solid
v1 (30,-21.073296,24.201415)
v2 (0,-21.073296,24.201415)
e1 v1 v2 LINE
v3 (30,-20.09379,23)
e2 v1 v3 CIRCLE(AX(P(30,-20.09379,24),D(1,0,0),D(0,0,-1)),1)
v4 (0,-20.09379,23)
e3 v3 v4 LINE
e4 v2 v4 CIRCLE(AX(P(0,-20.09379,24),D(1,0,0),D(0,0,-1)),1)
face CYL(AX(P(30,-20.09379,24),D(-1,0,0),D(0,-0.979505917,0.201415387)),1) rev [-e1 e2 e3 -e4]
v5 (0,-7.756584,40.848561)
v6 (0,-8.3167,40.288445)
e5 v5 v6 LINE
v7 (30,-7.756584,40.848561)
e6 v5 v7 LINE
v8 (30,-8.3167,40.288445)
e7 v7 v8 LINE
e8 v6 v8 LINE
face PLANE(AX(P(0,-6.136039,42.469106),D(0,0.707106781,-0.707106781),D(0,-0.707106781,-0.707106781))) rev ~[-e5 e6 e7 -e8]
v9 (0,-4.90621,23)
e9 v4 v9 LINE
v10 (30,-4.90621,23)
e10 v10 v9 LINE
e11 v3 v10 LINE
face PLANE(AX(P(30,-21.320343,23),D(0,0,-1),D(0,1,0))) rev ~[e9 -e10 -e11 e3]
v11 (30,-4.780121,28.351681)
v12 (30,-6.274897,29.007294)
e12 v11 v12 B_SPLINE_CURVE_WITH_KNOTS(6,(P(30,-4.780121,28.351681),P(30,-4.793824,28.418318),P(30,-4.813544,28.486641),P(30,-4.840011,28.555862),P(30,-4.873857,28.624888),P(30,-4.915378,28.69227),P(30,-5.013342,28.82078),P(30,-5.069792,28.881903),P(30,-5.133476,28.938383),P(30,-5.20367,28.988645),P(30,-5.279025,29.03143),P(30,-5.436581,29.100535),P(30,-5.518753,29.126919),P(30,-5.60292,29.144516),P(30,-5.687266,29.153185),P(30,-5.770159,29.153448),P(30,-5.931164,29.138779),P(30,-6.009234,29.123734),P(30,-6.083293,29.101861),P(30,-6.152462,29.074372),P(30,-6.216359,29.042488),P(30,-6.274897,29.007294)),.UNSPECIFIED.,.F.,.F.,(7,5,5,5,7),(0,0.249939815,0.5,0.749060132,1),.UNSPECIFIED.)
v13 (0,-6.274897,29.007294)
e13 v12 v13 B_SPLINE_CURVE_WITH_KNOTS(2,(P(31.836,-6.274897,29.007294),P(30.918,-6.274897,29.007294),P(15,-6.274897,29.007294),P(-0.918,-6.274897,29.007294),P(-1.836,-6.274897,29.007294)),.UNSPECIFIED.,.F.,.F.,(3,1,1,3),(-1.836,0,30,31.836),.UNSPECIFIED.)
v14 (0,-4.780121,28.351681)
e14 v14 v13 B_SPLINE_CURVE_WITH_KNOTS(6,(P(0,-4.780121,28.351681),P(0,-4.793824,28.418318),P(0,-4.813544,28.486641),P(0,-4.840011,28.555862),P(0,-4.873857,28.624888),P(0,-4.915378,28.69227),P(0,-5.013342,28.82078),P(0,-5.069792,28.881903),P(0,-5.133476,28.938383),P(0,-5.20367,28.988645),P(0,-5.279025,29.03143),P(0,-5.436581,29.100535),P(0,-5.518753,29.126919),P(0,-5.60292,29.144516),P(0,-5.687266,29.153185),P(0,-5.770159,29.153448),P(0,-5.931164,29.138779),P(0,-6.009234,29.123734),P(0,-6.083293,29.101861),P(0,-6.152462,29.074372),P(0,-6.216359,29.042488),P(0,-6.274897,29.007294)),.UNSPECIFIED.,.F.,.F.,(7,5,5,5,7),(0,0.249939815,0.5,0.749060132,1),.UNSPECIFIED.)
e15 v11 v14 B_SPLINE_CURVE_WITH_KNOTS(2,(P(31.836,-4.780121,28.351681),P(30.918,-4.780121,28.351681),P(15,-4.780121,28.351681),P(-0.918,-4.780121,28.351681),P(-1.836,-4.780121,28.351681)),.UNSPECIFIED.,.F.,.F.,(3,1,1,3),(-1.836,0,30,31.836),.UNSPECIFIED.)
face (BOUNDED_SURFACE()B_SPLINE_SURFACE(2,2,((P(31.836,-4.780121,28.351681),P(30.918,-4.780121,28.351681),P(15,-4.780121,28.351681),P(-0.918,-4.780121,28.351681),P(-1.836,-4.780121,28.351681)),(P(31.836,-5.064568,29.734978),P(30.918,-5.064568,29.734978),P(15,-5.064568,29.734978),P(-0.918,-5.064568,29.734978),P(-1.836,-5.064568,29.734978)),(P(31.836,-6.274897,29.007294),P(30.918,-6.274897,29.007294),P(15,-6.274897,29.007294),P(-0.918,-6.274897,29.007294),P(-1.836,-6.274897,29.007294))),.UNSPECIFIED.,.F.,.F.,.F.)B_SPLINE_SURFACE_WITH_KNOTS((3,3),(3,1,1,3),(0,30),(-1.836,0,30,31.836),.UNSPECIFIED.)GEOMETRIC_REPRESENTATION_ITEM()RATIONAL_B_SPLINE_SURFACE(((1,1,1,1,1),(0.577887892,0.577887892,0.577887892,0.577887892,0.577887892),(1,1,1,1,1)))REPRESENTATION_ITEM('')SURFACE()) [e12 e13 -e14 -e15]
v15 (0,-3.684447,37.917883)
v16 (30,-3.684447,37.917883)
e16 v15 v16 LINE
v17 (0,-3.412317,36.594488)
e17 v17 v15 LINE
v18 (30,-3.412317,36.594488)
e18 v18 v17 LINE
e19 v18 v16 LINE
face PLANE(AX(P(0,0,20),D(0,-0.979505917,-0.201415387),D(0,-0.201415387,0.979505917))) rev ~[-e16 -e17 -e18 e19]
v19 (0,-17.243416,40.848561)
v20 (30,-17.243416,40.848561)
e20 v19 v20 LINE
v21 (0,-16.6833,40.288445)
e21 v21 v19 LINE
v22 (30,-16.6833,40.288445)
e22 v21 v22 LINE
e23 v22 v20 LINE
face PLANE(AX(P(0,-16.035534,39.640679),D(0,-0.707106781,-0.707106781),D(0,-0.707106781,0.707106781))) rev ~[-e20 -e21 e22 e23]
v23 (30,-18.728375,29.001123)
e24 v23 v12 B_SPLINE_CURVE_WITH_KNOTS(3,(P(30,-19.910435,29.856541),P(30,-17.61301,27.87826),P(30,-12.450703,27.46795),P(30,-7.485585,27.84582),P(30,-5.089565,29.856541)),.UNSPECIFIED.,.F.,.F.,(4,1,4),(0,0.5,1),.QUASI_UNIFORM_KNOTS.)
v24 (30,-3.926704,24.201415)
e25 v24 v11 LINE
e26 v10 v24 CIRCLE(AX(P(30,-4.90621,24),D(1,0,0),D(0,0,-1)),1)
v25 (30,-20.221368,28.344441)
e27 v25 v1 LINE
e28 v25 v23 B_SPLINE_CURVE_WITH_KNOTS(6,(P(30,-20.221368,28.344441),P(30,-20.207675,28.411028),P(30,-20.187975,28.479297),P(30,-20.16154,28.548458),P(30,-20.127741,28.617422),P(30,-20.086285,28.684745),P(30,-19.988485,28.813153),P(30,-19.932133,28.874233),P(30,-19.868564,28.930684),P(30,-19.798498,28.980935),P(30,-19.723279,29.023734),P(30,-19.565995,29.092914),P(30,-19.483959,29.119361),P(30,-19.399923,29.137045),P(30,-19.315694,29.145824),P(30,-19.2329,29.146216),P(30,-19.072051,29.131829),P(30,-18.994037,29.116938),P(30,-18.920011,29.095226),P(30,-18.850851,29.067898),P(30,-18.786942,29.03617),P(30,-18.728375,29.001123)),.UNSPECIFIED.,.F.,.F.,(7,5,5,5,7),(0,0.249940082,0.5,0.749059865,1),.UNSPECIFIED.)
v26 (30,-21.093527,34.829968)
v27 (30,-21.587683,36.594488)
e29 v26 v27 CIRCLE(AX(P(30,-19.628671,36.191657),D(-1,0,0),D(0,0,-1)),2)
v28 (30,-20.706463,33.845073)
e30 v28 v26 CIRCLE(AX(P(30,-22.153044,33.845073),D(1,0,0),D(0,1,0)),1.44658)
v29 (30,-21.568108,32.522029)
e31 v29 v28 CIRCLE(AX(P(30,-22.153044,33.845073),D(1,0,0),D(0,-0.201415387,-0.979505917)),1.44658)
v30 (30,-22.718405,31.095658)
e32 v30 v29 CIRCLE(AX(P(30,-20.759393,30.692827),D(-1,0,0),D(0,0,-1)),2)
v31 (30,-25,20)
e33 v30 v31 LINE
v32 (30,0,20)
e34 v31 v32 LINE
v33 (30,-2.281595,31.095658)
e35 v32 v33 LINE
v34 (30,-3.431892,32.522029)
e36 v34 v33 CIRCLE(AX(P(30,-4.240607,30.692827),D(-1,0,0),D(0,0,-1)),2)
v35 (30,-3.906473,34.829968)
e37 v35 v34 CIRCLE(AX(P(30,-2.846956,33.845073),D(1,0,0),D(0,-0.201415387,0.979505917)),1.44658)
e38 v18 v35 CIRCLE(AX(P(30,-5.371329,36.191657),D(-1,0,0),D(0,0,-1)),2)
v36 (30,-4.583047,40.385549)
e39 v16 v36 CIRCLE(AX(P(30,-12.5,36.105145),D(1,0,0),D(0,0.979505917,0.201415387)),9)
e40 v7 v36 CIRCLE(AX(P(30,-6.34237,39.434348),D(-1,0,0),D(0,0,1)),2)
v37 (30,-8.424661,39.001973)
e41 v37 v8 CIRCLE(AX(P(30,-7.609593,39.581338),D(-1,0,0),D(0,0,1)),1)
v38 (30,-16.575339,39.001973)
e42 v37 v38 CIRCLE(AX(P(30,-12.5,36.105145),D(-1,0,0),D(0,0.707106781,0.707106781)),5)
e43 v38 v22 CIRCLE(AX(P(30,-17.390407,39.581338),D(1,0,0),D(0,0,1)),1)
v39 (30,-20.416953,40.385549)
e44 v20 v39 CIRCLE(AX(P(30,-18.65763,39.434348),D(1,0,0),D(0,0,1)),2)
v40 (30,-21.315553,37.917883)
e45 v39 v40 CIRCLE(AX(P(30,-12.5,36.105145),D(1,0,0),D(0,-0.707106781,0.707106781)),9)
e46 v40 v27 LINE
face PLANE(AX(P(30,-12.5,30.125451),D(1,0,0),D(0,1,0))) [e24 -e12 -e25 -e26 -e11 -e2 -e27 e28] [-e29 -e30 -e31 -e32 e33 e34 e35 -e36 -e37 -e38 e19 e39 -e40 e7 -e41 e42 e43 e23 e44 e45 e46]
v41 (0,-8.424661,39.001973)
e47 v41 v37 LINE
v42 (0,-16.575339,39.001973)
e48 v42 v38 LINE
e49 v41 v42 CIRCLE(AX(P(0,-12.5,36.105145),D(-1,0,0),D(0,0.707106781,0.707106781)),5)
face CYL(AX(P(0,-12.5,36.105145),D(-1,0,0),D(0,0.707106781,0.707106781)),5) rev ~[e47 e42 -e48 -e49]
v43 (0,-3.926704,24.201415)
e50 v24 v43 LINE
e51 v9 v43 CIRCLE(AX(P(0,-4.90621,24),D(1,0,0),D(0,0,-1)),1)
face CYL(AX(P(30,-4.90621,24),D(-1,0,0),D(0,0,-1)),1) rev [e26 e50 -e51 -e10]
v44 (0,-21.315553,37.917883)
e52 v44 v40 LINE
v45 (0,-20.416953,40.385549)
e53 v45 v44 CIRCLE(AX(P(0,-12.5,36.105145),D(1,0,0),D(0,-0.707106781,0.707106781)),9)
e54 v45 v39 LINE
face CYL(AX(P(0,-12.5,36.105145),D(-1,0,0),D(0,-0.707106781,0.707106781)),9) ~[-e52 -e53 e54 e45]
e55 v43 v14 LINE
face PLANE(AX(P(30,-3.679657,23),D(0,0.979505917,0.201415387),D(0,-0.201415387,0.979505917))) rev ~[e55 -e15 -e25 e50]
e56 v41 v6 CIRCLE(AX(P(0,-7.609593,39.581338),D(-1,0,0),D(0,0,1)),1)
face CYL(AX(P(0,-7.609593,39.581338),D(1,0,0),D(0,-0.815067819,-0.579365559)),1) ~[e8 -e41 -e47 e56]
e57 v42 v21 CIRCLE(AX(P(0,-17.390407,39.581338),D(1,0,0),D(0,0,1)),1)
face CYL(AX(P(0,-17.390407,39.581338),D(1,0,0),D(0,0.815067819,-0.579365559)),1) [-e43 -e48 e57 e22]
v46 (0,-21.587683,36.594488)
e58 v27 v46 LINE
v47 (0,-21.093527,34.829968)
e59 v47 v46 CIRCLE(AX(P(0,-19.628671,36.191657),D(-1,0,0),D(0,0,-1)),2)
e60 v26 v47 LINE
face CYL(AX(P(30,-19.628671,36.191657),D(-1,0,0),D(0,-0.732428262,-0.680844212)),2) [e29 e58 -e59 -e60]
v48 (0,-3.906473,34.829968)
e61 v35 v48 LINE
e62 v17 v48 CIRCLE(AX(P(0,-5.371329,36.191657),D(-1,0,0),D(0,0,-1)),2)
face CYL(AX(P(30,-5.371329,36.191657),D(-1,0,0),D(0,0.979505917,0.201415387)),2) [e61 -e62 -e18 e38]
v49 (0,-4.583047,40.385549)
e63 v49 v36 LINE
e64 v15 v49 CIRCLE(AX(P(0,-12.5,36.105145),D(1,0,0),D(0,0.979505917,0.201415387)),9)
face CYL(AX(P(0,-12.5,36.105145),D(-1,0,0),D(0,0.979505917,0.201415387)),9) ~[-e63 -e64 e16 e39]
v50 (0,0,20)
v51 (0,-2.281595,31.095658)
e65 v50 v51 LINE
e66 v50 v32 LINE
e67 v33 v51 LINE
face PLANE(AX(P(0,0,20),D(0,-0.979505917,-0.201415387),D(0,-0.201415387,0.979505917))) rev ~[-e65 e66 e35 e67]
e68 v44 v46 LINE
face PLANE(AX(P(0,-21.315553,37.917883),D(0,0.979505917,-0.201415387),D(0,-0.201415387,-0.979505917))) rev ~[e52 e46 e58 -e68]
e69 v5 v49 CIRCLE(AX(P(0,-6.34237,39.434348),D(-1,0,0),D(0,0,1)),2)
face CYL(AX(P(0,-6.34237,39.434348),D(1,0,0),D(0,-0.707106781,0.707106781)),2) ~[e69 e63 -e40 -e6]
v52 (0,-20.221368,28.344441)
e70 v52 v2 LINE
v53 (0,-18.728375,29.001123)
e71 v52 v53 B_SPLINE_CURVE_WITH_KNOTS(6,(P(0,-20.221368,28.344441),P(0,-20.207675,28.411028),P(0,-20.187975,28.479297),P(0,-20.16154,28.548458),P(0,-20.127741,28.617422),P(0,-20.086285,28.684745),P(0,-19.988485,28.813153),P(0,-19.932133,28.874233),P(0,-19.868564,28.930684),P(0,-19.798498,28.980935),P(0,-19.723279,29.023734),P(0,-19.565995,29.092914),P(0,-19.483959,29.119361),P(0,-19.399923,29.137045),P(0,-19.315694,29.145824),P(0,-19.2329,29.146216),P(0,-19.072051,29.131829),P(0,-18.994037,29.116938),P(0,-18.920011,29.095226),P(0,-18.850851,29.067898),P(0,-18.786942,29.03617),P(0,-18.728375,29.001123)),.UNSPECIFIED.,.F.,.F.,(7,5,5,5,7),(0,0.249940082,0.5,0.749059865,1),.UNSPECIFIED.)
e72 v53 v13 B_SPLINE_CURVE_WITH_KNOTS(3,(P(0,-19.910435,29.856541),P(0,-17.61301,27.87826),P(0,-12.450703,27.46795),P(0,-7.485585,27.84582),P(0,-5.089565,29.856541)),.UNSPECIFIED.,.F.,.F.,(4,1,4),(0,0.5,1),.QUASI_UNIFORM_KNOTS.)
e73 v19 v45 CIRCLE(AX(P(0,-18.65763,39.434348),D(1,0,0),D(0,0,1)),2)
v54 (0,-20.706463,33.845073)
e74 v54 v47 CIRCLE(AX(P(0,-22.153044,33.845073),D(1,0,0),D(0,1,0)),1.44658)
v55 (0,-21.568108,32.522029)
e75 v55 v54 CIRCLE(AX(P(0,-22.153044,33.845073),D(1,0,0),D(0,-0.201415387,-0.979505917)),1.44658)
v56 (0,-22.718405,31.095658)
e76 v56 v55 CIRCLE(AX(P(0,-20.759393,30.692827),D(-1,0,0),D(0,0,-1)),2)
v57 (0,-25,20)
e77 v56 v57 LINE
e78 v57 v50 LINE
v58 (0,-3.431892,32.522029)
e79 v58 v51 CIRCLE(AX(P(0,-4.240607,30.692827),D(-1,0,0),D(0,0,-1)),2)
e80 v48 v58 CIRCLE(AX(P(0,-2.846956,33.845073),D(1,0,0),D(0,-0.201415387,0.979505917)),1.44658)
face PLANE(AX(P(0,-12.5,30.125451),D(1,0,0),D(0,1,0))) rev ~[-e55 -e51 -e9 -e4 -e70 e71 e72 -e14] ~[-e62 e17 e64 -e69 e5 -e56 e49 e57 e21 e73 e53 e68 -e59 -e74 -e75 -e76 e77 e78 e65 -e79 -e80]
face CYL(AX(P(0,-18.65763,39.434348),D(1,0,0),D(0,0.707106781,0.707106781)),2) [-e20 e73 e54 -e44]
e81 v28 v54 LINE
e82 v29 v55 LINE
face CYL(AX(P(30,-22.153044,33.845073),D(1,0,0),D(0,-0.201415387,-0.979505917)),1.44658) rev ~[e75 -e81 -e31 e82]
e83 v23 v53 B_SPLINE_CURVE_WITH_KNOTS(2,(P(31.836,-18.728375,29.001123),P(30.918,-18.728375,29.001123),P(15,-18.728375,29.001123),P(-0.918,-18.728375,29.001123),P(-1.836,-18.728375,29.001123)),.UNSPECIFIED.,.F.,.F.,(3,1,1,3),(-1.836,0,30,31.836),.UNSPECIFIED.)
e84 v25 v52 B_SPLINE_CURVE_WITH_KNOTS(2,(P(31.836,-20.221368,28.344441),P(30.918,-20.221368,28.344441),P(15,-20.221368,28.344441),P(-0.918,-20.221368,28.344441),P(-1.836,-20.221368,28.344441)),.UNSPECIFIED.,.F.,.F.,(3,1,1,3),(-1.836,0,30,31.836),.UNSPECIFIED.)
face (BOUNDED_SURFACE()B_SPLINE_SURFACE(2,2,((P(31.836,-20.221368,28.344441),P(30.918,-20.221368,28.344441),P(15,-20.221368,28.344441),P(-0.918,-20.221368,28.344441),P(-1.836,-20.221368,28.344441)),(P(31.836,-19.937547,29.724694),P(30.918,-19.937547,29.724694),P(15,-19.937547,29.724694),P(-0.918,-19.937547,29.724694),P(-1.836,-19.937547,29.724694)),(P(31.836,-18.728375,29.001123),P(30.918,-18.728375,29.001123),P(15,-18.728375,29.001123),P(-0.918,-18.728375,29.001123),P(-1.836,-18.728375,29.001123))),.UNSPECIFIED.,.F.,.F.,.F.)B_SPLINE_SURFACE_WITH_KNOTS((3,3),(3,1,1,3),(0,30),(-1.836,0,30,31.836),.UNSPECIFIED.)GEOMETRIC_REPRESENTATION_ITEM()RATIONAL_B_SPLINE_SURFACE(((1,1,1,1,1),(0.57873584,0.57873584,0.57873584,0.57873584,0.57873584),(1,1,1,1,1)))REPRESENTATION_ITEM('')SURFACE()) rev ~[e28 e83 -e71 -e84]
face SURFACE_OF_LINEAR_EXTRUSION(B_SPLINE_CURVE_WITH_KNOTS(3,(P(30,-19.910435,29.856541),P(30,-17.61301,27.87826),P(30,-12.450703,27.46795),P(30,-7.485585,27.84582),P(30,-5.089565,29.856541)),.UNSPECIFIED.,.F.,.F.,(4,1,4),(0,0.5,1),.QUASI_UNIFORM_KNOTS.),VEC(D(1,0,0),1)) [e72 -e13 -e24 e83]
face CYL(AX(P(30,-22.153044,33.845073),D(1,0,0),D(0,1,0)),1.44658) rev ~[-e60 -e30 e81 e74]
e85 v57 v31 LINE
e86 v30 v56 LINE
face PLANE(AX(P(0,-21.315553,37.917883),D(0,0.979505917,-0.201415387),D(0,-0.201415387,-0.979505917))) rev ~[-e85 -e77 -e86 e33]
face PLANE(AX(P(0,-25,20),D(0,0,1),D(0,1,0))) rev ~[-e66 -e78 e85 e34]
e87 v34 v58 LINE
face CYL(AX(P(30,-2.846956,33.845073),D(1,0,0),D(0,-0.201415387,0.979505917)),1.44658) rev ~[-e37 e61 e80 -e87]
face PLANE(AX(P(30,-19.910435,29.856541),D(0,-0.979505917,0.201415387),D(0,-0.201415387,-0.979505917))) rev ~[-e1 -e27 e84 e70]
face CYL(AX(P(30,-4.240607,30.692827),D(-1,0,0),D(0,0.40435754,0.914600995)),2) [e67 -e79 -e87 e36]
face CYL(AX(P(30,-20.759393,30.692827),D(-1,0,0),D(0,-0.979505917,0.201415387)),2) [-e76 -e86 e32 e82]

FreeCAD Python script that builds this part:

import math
import FreeCAD as App
import Part
import Sketcher
from FreeCAD import Vector


def edges_at(feature, points):
    """Names of the edges that pass closest to the given points."""
    edges = feature.Shape.Edges
    near = lambda p: min(range(len(edges)), key=lambda i: edges[i].distToShape(Part.Vertex(*p))[0])
    return sorted({f"Edge{near(p) + 1}" for p in points})

doc = App.newDocument("Part")
body = doc.addObject("PartDesign::Body", "Body")

# Sketch on YZ plane
sketch1 = doc.addObject("Sketcher::SketchObject", "Sketch")
body.addObject(sketch1)
sketch1.AttachmentSupport = (doc.YZ_Plane, [""])
sketch1.MapMode = "FlatFace"
sketch1.addGeometry([
    Part.ArcOfCircle(Part.Circle(Vector(-12.5, 36.1, 0), Vector(0, 0, 1), 5), math.radians(135), math.radians(405)),  # 0
    Part.LineSegment(Vector(-16, 39.6, 0), Vector(-18.9, 42.5, 0)),  # 1
    Part.ArcOfCircle(Part.Circle(Vector(-12.5, 36.1, 0), Vector(0, 0, 1), 9), math.radians(135), math.radians(168)),  # 2
    Part.LineSegment(Vector(-21.3, 37.9, 0), Vector(-25, 20, 0)),  # 3
    Part.LineSegment(Vector(-25, 20, 0), Vector(0, 20, 0)),  # 4
    Part.LineSegment(Vector(0, 20, 0), Vector(-3.7, 37.9, 0)),  # 5
    Part.ArcOfCircle(Part.Circle(Vector(-12.5, 36.1, 0), Vector(0, 0, 1), 9), math.radians(12), math.radians(45)),  # 6
    Part.LineSegment(Vector(-6.1, 42.5, 0), Vector(-9, 39.6, 0)),  # 7
], False)
sketch1.addConstraint([
    Sketcher.Constraint("Coincident", 0, 1, 1, 1),
    Sketcher.Constraint("Coincident", 1, 2, 2, 1),
    Sketcher.Constraint("Tangent", 2, 2, 3, 1),
    Sketcher.Constraint("Coincident", 3, 2, 4, 1),
    Sketcher.Constraint("Coincident", 4, 2, 5, 1),
    Sketcher.Constraint("Tangent", 5, 2, 6, 1),
    Sketcher.Constraint("Coincident", 6, 2, 7, 1),
    Sketcher.Constraint("Coincident", 7, 2, 0, 2),
    Sketcher.Constraint("Horizontal", 4),
    Sketcher.Constraint("Coincident", 2, 3, 0, 3),
    Sketcher.Constraint("Coincident", 6, 3, 0, 3),
    Sketcher.Constraint("Equal", 2, 6),
    Sketcher.Constraint("PointOnObject", 4, 2, -2),
    Sketcher.Constraint("Perpendicular", 1, 7),
    Sketcher.Constraint("Horizontal", 2, 2, 5, 2),
    Sketcher.Constraint("Horizontal", 1, 2, 6, 2),
    Sketcher.Constraint("Horizontal", 0, 1, 7, 2),
    Sketcher.Constraint("Radius", 0, 5.0),
    Sketcher.Constraint("Radius", 2, 9.0),
    Sketcher.Constraint("DistanceX", 4, 1, 4, 2, 25.0),
    Sketcher.Constraint("DistanceY", -1, 1, 3, 2, 20.0),
    Sketcher.Constraint("DistanceY", -1, 1, 0, 1, 39.640679),
    Sketcher.Constraint("DistanceX", 1, 2, -1, 1, 18.863961),
])
pad1 = doc.addObject("PartDesign::Pad", "Pad")
body.addObject(pad1)
pad1.Profile = sketch1
pad1.Length = 30
doc.recompute()

fillet = doc.addObject("PartDesign::Fillet", "Fillet")
body.addObject(fillet)
fillet.Base = (pad1, edges_at(pad1, [(15, -8.964, 39.641), (15, -16.036, 39.641)]))
fillet.Radius = 1
doc.recompute()

fillet2 = doc.addObject("PartDesign::Fillet", "Fillet001")
body.addObject(fillet2)
fillet2.Base = (fillet, edges_at(fillet, [(15, -6.136, 42.469), (15, -18.864, 42.469)]))
fillet2.Radius = 2

# Sketch on YZ plane
sketch2 = doc.addObject("Sketcher::SketchObject", "Sketch001")
body.addObject(sketch2)
sketch2.AttachmentSupport = (doc.YZ_Plane, [""])
sketch2.MapMode = "FlatFace"
sketch2.AttachmentOffset = App.Placement(Vector(0, 0, 30), App.Rotation())
sketch2.addGeometry([
    Part.LineSegment(Vector(-19.910435, 29.856541, 0), Vector(-21.320343, 23, 0)),
    Part.LineSegment(Vector(-21.320343, 23, 0), Vector(-3.679657, 23, 0)),
    Part.LineSegment(Vector(-3.679657, 23, 0), Vector(-5.089565, 29.856541, 0)),
    Part.BSplineCurve([Vector(-19.910435, 29.856541, 0), Vector(-17.61301, 27.87826, 0), Vector(-12.450703, 27.46795, 0), Vector(-7.485585, 27.84582, 0), Vector(-5.089565, 29.856541, 0)], [4, 1, 4], [0, 0.5, 1], False, 3, [1, 1, 1, 1, 1], False),
], False)
sketch2.addConstraint([
    Sketcher.Constraint("Block", 3),
    Sketcher.Constraint("Coincident", 0, 2, 1, 1),
    Sketcher.Constraint("Coincident", 1, 2, 2, 1),
    Sketcher.Constraint("Coincident", 2, 2, 3, 2),
    Sketcher.Constraint("Coincident", 3, 1, 0, 1),
    Sketcher.Constraint("Horizontal", 1),
    Sketcher.Constraint("Equal", 0, 2),
    Sketcher.Constraint("Distance", 0, 7.0),
    Sketcher.Constraint("DistanceY", -1, 1, 0, 2, 23.0),
])
pocket1 = doc.addObject("PartDesign::Pocket", "Pocket")
body.addObject(pocket1)
pocket1.Profile = sketch2
pocket1.Type = "ThroughAll"
doc.recompute()

fillet3 = doc.addObject("PartDesign::Fillet", "Fillet002")
body.addObject(fillet3)
fillet3.Base = (pocket1, edges_at(pocket1, [
    (15, -21.32, 23),
    (15, -19.91, 29.857),
    (15, -3.68, 23),
    (15, -5.09, 29.857),
]))
fillet3.Radius = 1

# Sketch on YZ plane
sketch3 = doc.addObject("Sketcher::SketchObject", "Sketch002")
body.addObject(sketch3)
sketch3.AttachmentSupport = (doc.YZ_Plane, [""])
sketch3.MapMode = "FlatFace"
sketch3.AttachmentOffset = App.Placement(Vector(0, 0, 30), App.Rotation())
sketch3.addGeometry([
    Part.ArcOfCircle(Part.Circle(Vector(-2.8, 33.8, 0), Vector(0, 0, 1), 1.4), math.radians(102), math.radians(282)),  # 0
    Part.LineSegment(Vector(-2.6, 32.4, 0), Vector(-3.1, 35.3, 0)),  # 1
    Part.ArcOfCircle(Part.Circle(Vector(-22.2, 33.8, 0), Vector(0, 0, 1), 1.4), math.radians(-102), math.radians(0)),  # 2
    Part.ArcOfCircle(Part.Circle(Vector(-22.2, 33.8, 0), Vector(0, 0, 1), 1.4), math.radians(0), math.radians(78)),  # 3
    Part.LineSegment(Vector(-21.9, 35.3, 0), Vector(-22.4, 32.4, 0)),  # 4
], False)
sketch3.addConstraint([
    Sketcher.Constraint("Coincident", 0, 1, 1, 2),
    Sketcher.Constraint("Coincident", 1, 1, 0, 2),
    Sketcher.Constraint("Tangent", 2, 2, 3, 1),
    Sketcher.Constraint("Coincident", 3, 2, 4, 1),
    Sketcher.Constraint("Coincident", 4, 2, 2, 1),
    Sketcher.Constraint("Equal", 0, 2),
    Sketcher.Constraint("Equal", 2, 3),
    Sketcher.Constraint("Horizontal", 0, 3, 2, 3),
    Sketcher.Constraint("Horizontal", 3, 3, 2, 2),
    Sketcher.Constraint("Horizontal", 0, 1, 3, 2),
    Sketcher.Constraint("Horizontal", 1, 1, 4, 2),
    Sketcher.Constraint("Radius", 0, 1.44658),
    Sketcher.Constraint("DistanceX", 0, 1, -1, 1, 3.13832),
    Sketcher.Constraint("DistanceY", -1, 1, 1, 1, 32.428139),
    Sketcher.Constraint("DistanceX", 3, 2, -1, 1, 21.86168),
    Sketcher.Constraint("DistanceY", 1, 1, 0, 1, 2.833868),
    Sketcher.Constraint("DistanceX", 2, 3, 1, 1, 19.597451),
])
pocket2 = doc.addObject("PartDesign::Pocket", "Pocket001")
body.addObject(pocket2)
pocket2.Profile = sketch3
pocket2.Type = "ThroughAll"
doc.recompute()

fillet4 = doc.addObject("PartDesign::Fillet", "Fillet003")
body.addObject(fillet4)
fillet4.Base = (pocket2, edges_at(pocket2, [
    (15, -21.862, 35.262),
    (15, -22.444, 32.428),
    (15, -3.138, 35.262),
    (15, -2.556, 32.428),
]))
fillet4.Radius = 2

doc.recompute()
